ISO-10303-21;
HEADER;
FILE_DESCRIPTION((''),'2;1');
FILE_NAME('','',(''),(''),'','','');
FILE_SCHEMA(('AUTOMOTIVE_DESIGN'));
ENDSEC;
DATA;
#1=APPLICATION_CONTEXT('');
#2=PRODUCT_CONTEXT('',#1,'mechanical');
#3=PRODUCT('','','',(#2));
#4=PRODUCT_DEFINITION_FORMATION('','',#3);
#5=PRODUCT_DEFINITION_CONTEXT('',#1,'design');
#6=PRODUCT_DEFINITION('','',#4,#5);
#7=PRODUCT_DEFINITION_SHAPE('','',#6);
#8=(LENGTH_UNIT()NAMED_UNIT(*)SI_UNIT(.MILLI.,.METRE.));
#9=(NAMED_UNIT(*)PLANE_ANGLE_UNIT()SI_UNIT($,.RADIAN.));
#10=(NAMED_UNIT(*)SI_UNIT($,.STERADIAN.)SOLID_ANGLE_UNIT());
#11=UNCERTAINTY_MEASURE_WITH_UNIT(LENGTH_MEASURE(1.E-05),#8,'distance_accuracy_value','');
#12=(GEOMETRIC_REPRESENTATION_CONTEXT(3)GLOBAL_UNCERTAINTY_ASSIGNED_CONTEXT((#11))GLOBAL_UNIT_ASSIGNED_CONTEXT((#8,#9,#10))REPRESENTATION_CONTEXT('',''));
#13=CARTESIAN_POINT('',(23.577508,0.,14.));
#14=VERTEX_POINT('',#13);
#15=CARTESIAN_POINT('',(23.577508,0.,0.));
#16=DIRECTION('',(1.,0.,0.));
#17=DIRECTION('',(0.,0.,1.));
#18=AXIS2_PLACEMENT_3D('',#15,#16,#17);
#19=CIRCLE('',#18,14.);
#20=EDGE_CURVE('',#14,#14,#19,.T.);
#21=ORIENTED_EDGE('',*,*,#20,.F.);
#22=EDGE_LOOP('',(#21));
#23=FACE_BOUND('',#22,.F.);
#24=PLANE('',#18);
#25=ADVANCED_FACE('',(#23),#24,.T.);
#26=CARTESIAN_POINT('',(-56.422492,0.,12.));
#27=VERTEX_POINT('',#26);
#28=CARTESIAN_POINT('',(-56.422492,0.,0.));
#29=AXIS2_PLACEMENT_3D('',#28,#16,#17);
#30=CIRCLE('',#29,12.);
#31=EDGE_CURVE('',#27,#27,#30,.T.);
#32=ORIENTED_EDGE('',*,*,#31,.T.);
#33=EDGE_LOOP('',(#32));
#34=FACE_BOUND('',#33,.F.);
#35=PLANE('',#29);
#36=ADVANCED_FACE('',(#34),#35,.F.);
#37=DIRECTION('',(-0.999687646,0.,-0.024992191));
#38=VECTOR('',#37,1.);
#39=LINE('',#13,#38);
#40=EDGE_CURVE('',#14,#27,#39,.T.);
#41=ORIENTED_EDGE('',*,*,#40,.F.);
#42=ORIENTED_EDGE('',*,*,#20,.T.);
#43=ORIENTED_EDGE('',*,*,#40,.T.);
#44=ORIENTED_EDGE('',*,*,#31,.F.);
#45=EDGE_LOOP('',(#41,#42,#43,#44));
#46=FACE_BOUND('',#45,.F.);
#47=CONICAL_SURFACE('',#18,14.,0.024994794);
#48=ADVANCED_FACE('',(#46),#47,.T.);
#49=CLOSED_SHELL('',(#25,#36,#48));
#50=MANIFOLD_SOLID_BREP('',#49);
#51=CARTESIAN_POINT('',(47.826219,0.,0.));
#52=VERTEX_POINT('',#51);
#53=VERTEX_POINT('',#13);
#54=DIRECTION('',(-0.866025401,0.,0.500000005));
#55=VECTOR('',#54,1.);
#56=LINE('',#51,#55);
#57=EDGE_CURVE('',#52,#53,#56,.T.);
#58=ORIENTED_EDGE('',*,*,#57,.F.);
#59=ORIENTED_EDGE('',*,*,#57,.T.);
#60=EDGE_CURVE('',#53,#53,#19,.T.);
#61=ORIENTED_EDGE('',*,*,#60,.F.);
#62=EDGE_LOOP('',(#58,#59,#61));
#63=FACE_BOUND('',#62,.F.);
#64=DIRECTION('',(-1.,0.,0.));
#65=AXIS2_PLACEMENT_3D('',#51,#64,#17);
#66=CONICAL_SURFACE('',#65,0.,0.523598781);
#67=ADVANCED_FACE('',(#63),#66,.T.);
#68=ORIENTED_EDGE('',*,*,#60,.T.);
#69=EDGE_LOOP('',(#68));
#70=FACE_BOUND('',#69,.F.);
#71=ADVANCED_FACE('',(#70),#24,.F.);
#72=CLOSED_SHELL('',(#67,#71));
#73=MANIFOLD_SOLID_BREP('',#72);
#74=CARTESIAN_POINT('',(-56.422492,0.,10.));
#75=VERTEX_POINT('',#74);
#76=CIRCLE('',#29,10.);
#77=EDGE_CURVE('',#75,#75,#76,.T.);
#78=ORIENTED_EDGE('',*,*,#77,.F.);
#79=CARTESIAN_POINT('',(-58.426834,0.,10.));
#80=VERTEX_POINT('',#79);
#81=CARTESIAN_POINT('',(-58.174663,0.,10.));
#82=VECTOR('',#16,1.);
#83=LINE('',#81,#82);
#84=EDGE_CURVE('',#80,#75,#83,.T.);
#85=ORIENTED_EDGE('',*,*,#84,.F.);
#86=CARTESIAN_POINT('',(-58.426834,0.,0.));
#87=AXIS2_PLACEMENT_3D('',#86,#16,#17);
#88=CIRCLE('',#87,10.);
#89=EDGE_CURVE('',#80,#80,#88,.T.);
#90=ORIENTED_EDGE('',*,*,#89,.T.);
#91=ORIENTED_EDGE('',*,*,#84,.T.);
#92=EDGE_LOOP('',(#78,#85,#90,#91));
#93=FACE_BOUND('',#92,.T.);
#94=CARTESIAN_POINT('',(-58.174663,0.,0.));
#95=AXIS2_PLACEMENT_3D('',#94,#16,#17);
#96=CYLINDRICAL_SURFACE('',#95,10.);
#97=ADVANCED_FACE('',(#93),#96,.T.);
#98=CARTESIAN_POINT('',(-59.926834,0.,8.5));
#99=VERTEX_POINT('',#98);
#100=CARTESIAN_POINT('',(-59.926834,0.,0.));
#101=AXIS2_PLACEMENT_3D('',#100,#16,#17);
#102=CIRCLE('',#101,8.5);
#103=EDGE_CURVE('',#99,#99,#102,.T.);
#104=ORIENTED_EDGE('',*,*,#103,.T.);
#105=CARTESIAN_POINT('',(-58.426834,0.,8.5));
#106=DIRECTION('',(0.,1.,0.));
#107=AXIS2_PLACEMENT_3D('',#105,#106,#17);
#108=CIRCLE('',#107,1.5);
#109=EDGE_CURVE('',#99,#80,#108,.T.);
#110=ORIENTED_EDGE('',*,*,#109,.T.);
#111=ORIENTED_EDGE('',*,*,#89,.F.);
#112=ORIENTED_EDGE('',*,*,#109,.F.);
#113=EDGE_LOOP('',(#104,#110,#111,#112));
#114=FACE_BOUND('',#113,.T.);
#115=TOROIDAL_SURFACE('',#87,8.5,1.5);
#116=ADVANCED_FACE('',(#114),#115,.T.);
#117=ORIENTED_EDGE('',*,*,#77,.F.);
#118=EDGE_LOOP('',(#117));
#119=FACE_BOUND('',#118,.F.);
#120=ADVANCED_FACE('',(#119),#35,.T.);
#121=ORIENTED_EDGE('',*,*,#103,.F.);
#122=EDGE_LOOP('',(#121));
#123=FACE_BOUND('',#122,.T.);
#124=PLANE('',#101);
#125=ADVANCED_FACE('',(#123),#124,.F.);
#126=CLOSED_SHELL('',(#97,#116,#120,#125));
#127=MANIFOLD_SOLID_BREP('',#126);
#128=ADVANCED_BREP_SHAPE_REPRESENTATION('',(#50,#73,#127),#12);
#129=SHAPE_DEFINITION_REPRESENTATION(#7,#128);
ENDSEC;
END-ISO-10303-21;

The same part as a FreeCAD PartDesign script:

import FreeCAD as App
import Part
import Sketcher
from FreeCAD import Vector
Q = App.Units.Quantity


def edges_at(feature, points):
    """Names of the edges that pass closest to the given points."""
    edges = feature.Shape.Edges
    near = lambda p: min(range(len(edges)), key=lambda i: edges[i].distToShape(Part.Vertex(*p))[0])
    return sorted({f"Edge{near(p) + 1}" for p in points})

doc = App.newDocument("Part")
body = doc.addObject("PartDesign::Body", "Body")

sketch1 = body.newObject("Sketcher::SketchObject", "Sketch")
sketch1.AttachmentSupport = (doc.getObject("XZ_Plane"), [""])
sketch1.MapMode = "FlatFace"
sketch1.addGeometry(Part.LineSegment(Vector(48, 0, 0), Vector(24, 14, 0)), False)
sketch1.addGeometry(Part.LineSegment(Vector(24, 14, 0), Vector(24, 0, 0)), False)
sketch1.addGeometry(Part.LineSegment(Vector(24, 0, 0), Vector(48, 0, 0)), False)
sketch1.addConstraint(Sketcher.Constraint("Coincident", 0, 2, 1, 1))
sketch1.addConstraint(Sketcher.Constraint("Coincident", 1, 2, 2, 1))
sketch1.addConstraint(Sketcher.Constraint("Coincident", 2, 2, 0, 1))
sketch1.addConstraint(Sketcher.Constraint("Vertical", 1))
sketch1.addConstraint(Sketcher.Constraint("Horizontal", 2))
sketch1.addConstraint(Sketcher.Constraint("PointOnObject", 1, 2, -1))
sketch1.addConstraint(Sketcher.Constraint("DistanceY", 1, 2, 1, 1, 14.0))
sketch1.addConstraint(Sketcher.Constraint("Angle", 0, Q("150 deg")))
sketch1.addConstraint(Sketcher.Constraint("DistanceX", -1, 1, 0, 2, 23.577508))
revolution = body.newObject("PartDesign::Revolution", "Revolution")
revolution.Profile = sketch1
revolution.ReferenceAxis = (sketch1, ["H_Axis"])
revolution.Angle = 360
body2 = doc.addObject("PartDesign::Body", "Body001")

sketch2 = body2.newObject("Sketcher::SketchObject", "Sketch001")
sketch2.AttachmentSupport = (doc.getObject("XZ_Plane001"), [""])
sketch2.MapMode = "FlatFace"
sketch2.addGeometry(Part.LineSegment(Vector(24, 0, 0), Vector(24, 14, 0)), False)
sketch2.addGeometry(Part.LineSegment(Vector(24, 14, 0), Vector(-56, 12, 0)), False)
sketch2.addGeometry(Part.LineSegment(Vector(-56, 12, 0), Vector(-56, 0, 0)), False)
sketch2.addGeometry(Part.LineSegment(Vector(-56, 0, 0), Vector(24, 0, 0)), False)
sketch2.addConstraint(Sketcher.Constraint("Coincident", 0, 2, 1, 1))
sketch2.addConstraint(Sketcher.Constraint("Coincident", 1, 2, 2, 1))
sketch2.addConstraint(Sketcher.Constraint("Coincident", 2, 2, 3, 1))
sketch2.addConstraint(Sketcher.Constraint("Coincident", 3, 2, 0, 1))
sketch2.addConstraint(Sketcher.Constraint("Vertical", 0))
sketch2.addConstraint(Sketcher.Constraint("Vertical", 2))
sketch2.addConstraint(Sketcher.Constraint("Horizontal", 3))
sketch2.addConstraint(Sketcher.Constraint("PointOnObject", 2, 2, -1))
sketch2.addConstraint(Sketcher.Constraint("DistanceX", 3, 1, 3, 2, 80.0))
sketch2.addConstraint(Sketcher.Constraint("DistanceY", 0, 1, 0, 2, 14.0))
sketch2.addConstraint(Sketcher.Constraint("DistanceY", 2, 2, 2, 1, 12.0))
sketch2.addConstraint(Sketcher.Constraint("DistanceX", -1, 1, 0, 2, 23.577508))
revolution2 = body2.newObject("PartDesign::Revolution", "Revolution001")
revolution2.Profile = sketch2
revolution2.ReferenceAxis = (sketch2, ["H_Axis"])
revolution2.Angle = 360
body3 = doc.addObject("PartDesign::Body", "Body002")

sketch3 = body3.newObject("Sketcher::SketchObject", "Sketch002")
sketch3.AttachmentSupport = (doc.getObject("XZ_Plane002"), [""])
sketch3.MapMode = "FlatFace"
sketch3.addGeometry(Part.LineSegment(Vector(-59.9, 10, 0), Vector(-59.9, 0, 0)), False)
sketch3.addGeometry(Part.LineSegment(Vector(-59.9, 0, 0), Vector(-56.4, 0, 0)), False)
sketch3.addGeometry(Part.LineSegment(Vector(-56.4, 0, 0), Vector(-56.4, 10, 0)), False)
sketch3.addGeometry(Part.LineSegment(Vector(-56.4, 10, 0), Vector(-59.9, 10, 0)), False)
sketch3.addConstraint(Sketcher.Constraint("Coincident", 0, 2, 1, 1))
sketch3.addConstraint(Sketcher.Constraint("Coincident", 1, 2, 2, 1))
sketch3.addConstraint(Sketcher.Constraint("Coincident", 2, 2, 3, 1))
sketch3.addConstraint(Sketcher.Constraint("Coincident", 3, 2, 0, 1))
sketch3.addConstraint(Sketcher.Constraint("Vertical", 0))
sketch3.addConstraint(Sketcher.Constraint("Horizontal", 1))
sketch3.addConstraint(Sketcher.Constraint("Vertical", 2))
sketch3.addConstraint(Sketcher.Constraint("Horizontal", 3))
sketch3.addConstraint(Sketcher.Constraint("PointOnObject", 0, 2, -1))
sketch3.addConstraint(Sketcher.Constraint("DistanceY", 0, 2, 0, 1, 10.0))
sketch3.addConstraint(Sketcher.Constraint("DistanceX", 1, 1, 1, 2, 3.504342))
sketch3.addConstraint(Sketcher.Constraint("DistanceX", 1, 2, -1, 1, 56.422492))
revolution3 = body3.newObject("PartDesign::Revolution", "Revolution002")
revolution3.Profile = sketch3
revolution3.ReferenceAxis = (sketch3, ["H_Axis"])
revolution3.Angle = 360
doc.recompute()

fillet = body3.newObject("PartDesign::Fillet", "Fillet")
fillet.Base = (revolution3, edges_at(revolution3, [(-59.927, 0, -10)]))
fillet.Radius = 1.5

doc.recompute()
